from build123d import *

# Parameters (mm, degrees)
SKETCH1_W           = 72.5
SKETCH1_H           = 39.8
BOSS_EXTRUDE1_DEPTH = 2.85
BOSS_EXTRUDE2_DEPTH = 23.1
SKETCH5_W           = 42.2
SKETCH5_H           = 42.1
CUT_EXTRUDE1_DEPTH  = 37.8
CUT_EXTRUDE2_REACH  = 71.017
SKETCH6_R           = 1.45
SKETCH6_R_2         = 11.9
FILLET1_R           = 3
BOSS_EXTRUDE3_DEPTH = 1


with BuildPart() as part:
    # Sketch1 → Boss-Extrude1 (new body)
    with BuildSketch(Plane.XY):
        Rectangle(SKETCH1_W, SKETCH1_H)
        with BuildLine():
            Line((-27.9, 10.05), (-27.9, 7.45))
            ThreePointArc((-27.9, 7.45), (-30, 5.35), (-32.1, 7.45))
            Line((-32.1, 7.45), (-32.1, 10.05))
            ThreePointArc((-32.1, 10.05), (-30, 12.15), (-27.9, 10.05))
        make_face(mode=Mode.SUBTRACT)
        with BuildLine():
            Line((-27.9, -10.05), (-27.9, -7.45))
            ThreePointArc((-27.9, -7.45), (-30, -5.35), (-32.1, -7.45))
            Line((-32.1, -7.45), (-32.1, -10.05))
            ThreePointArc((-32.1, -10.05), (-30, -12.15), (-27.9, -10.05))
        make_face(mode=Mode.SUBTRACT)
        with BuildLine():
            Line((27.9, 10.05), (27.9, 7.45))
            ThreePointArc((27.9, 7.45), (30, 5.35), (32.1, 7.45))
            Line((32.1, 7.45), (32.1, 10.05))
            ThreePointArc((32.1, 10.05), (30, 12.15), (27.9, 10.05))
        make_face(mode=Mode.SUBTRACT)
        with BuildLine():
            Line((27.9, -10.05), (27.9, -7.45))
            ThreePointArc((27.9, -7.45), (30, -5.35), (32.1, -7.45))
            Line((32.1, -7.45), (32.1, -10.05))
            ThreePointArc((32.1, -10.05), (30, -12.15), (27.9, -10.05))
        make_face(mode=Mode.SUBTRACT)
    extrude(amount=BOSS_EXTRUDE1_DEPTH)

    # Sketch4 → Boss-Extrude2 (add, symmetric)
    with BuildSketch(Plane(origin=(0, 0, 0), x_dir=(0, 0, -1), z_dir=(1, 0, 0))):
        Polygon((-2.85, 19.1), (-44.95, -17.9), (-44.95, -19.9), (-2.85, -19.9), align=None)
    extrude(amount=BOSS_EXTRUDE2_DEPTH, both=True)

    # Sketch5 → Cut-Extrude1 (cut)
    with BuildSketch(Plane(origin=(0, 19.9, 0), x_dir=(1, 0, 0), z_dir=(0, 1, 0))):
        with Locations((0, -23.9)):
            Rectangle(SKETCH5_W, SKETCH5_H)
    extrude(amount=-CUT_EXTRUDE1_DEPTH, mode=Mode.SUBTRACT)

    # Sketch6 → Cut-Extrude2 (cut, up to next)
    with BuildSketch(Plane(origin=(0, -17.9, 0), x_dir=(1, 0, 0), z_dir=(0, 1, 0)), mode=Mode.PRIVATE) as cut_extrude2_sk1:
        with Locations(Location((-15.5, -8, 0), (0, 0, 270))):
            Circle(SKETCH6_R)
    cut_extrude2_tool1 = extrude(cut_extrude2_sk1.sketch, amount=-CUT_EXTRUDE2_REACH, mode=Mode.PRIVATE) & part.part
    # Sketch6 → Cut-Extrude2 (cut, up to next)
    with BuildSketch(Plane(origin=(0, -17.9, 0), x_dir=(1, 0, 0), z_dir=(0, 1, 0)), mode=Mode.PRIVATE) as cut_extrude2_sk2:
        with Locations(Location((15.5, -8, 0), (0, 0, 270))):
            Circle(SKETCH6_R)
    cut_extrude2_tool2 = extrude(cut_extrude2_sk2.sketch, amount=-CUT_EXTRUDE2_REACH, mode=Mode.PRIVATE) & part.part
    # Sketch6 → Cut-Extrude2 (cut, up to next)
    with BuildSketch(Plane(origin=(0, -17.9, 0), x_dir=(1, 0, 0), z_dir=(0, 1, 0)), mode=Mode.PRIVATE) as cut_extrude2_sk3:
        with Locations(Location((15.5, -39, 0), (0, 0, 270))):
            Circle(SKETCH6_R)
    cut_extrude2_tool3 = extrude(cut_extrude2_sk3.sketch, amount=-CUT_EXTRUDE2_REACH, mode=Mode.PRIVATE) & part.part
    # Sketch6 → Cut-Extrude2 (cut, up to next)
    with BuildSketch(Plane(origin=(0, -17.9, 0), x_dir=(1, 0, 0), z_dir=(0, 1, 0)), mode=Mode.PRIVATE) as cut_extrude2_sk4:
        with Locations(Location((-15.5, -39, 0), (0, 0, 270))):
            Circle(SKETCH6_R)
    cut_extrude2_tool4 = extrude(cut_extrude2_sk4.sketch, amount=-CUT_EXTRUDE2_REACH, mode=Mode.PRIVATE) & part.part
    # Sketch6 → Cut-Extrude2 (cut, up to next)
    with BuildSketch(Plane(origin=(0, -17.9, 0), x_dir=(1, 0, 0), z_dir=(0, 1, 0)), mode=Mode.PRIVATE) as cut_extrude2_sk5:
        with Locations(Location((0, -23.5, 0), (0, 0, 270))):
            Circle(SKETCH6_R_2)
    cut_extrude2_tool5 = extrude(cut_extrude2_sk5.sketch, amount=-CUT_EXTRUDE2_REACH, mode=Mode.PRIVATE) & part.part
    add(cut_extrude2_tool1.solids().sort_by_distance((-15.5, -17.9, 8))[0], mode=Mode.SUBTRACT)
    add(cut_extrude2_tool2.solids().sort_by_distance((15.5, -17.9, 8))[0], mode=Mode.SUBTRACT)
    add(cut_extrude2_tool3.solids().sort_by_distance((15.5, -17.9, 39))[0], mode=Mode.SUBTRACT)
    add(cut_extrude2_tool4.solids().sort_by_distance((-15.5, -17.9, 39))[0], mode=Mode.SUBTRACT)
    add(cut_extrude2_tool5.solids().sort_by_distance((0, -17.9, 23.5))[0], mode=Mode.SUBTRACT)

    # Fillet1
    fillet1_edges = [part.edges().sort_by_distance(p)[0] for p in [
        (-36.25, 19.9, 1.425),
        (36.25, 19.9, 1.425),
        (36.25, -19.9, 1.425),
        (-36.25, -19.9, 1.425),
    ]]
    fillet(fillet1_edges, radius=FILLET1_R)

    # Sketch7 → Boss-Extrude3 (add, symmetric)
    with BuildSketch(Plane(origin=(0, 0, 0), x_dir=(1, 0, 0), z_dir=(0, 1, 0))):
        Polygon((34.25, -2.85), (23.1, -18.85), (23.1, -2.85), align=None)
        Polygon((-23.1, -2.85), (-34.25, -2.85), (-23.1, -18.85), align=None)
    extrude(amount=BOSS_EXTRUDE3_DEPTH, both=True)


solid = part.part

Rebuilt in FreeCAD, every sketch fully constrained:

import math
import FreeCAD as App
import Part
import Sketcher
Q = App.Units.Quantity


def edges_at(feature, points):
    """Names of the edges that pass closest to the given points."""
    edges = feature.Shape.Edges
    near = lambda p: min(range(len(edges)), key=lambda i: edges[i].distToShape(Part.Vertex(*p))[0])
    return sorted({f"Edge{near(p) + 1}" for p in points})

doc = App.newDocument("Part")
body = doc.addObject("PartDesign::Body", "Body")

# Sketch on XY plane
sketch1 = body.newObject("Sketcher::SketchObject", "Sketch")
sketch1.AttachmentSupport = (doc.getObject("XY_Plane"), [""])
sketch1.MapMode = "FlatFace"
sketch1.addGeometry(Part.LineSegment(App.Vector(-36.2, 19.9, 0), App.Vector(-36.2, -19.9, 0)), False)
sketch1.addGeometry(Part.LineSegment(App.Vector(-36.2, -19.9, 0), App.Vector(36.2, -19.9, 0)), False)
sketch1.addGeometry(Part.LineSegment(App.Vector(36.2, -19.9, 0), App.Vector(36.2, 19.9, 0)), False)
sketch1.addGeometry(Part.LineSegment(App.Vector(36.2, 19.9, 0), App.Vector(-36.2, 19.9, 0)), False)
sketch1.addGeometry(Part.LineSegment(App.Vector(-27.9, -7.5, 0), App.Vector(-27.9, -10.1, 0)), False)
sketch1.addGeometry(Part.ArcOfCircle(Part.Circle(App.Vector(-30, -10.1, 0), App.Vector(0, 0, 1), 2.1), math.radians(180), math.radians(360)), False)
sketch1.addGeometry(Part.LineSegment(App.Vector(-32.1, -10.1, 0), App.Vector(-32.1, -7.5, 0)), False)
sketch1.addGeometry(Part.ArcOfCircle(Part.Circle(App.Vector(-30, -7.5, 0), App.Vector(0, 0, 1), 2.1), math.radians(0), math.radians(180)), False)
sketch1.addGeometry(Part.ArcOfCircle(Part.Circle(App.Vector(30, -10.1, 0), App.Vector(0, 0, 1), 2.1), math.radians(180), math.radians(360)), False)
sketch1.addGeometry(Part.LineSegment(App.Vector(27.9, -10.1, 0), App.Vector(27.9, -7.5, 0)), False)
sketch1.addGeometry(Part.ArcOfCircle(Part.Circle(App.Vector(30, -7.5, 0), App.Vector(0, 0, 1), 2.1), math.radians(0), math.radians(180)), False)
sketch1.addGeometry(Part.LineSegment(App.Vector(32.1, -7.5, 0), App.Vector(32.1, -10.1, 0)), False)
sketch1.addGeometry(Part.ArcOfCircle(Part.Circle(App.Vector(-30, 10.1, 0), App.Vector(0, 0, 1), 2.1), math.radians(0), math.radians(180)), False)
sketch1.addGeometry(Part.LineSegment(App.Vector(-27.9, 10.1, 0), App.Vector(-27.9, 7.5, 0)), False)
sketch1.addGeometry(Part.ArcOfCircle(Part.Circle(App.Vector(-30, 7.5, 0), App.Vector(0, 0, 1), 2.1), math.radians(180), math.radians(360)), False)
sketch1.addGeometry(Part.LineSegment(App.Vector(-32.1, 7.5, 0), App.Vector(-32.1, 10.1, 0)), False)
sketch1.addGeometry(Part.LineSegment(App.Vector(27.9, 7.5, 0), App.Vector(27.9, 10.1, 0)), False)
sketch1.addGeometry(Part.ArcOfCircle(Part.Circle(App.Vector(30, 10.1, 0), App.Vector(0, 0, 1), 2.1), math.radians(0), math.radians(180)), False)
sketch1.addGeometry(Part.LineSegment(App.Vector(32.1, 10.1, 0), App.Vector(32.1, 7.5, 0)), False)
sketch1.addGeometry(Part.ArcOfCircle(Part.Circle(App.Vector(30, 7.5, 0), App.Vector(0, 0, 1), 2.1), math.radians(180), math.radians(360)), False)
sketch1.addConstraint(Sketcher.Constraint("Coincident", 0, 2, 1, 1))
sketch1.addConstraint(Sketcher.Constraint("Coincident", 1, 2, 2, 1))
sketch1.addConstraint(Sketcher.Constraint("Coincident", 2, 2, 3, 1))
sketch1.addConstraint(Sketcher.Constraint("Coincident", 3, 2, 0, 1))
sketch1.addConstraint(Sketcher.Constraint("Tangent", 4, 2, 5, 2))
sketch1.addConstraint(Sketcher.Constraint("Tangent", 5, 1, 6, 1))
sketch1.addConstraint(Sketcher.Constraint("Tangent", 6, 2, 7, 2))
sketch1.addConstraint(Sketcher.Constraint("Tangent", 7, 1, 4, 1))
sketch1.addConstraint(Sketcher.Constraint("Tangent", 8, 1, 9, 1))
sketch1.addConstraint(Sketcher.Constraint("Tangent", 9, 2, 10, 2))
sketch1.addConstraint(Sketcher.Constraint("Tangent", 10, 1, 11, 1))
sketch1.addConstraint(Sketcher.Constraint("Tangent", 11, 2, 8, 2))
sketch1.addConstraint(Sketcher.Constraint("Tangent", 12, 1, 13, 1))
sketch1.addConstraint(Sketcher.Constraint("Tangent", 13, 2, 14, 2))
sketch1.addConstraint(Sketcher.Constraint("Tangent", 14, 1, 15, 1))
sketch1.addConstraint(Sketcher.Constraint("Tangent", 15, 2, 12, 2))
sketch1.addConstraint(Sketcher.Constraint("Tangent", 16, 2, 17, 2))
sketch1.addConstraint(Sketcher.Constraint("Tangent", 17, 1, 18, 1))
sketch1.addConstraint(Sketcher.Constraint("Tangent", 18, 2, 19, 2))
sketch1.addConstraint(Sketcher.Constraint("Tangent", 19, 1, 16, 1))
sketch1.addConstraint(Sketcher.Constraint("Vertical", 0))
sketch1.addConstraint(Sketcher.Constraint("Horizontal", 1))
sketch1.addConstraint(Sketcher.Constraint("Vertical", 2))
sketch1.addConstraint(Sketcher.Constraint("Horizontal", 3))
sketch1.addConstraint(Sketcher.Constraint("Vertical", 4))
sketch1.addConstraint(Sketcher.Constraint("Vertical", 6))
sketch1.addConstraint(Sketcher.Constraint("Vertical", 9))
sketch1.addConstraint(Sketcher.Constraint("Vertical", 11))
sketch1.addConstraint(Sketcher.Constraint("Vertical", 13))
sketch1.addConstraint(Sketcher.Constraint("Vertical", 15))
sketch1.addConstraint(Sketcher.Constraint("Vertical", 16))
sketch1.addConstraint(Sketcher.Constraint("Vertical", 18))
sketch1.addConstraint(Sketcher.Constraint("Equal", 7, 8))
sketch1.addConstraint(Sketcher.Constraint("Equal", 10, 12))
sketch1.addConstraint(Sketcher.Constraint("Equal", 14, 17))
sketch1.addConstraint(Sketcher.Constraint("Symmetric", 8, 3, 12, 3, -1, 1))
sketch1.addConstraint(Sketcher.Constraint("Symmetric", 5, 3, 17, 3, -1, 1))
sketch1.addConstraint(Sketcher.Constraint("Symmetric", 0, 2, 2, 2, -1, 1))
sketch1.addConstraint(Sketcher.Constraint("Symmetric", 5, 3, 8, 3, -2))
sketch1.addConstraint(Sketcher.Constraint("Horizontal", 7, 3, 10, 3))
sketch1.addConstraint(Sketcher.Constraint("Horizontal", 14, 3, 19, 3))
sketch1.addConstraint(Sketcher.Constraint("Equal", 11, 13))
sketch1.addConstraint(Sketcher.Constraint("Radius", 5, Q("2.1 mm")))
sketch1.addConstraint(Sketcher.Constraint("DistanceX", 1, 1, 1, 2, Q("72.5 mm")))
sketch1.addConstraint(Sketcher.Constraint("DistanceY", 0, 2, 0, 1, Q("39.8 mm")))
sketch1.addConstraint(Sketcher.Constraint("DistanceY", 4, 2, 4, 1, Q("2.6 mm")))
sketch1.addConstraint(Sketcher.Constraint("DistanceX", 5, 3, -1, 1, Q("30 mm")))
sketch1.addConstraint(Sketcher.Constraint("DistanceY", 7, 3, 12, 3, Q("17.5 mm")))
pad1 = body.newObject("PartDesign::Pad", "Pad")
pad1.Profile = sketch1
pad1.Length = 2.85

# Sketch on YZ plane
sketch2 = body.newObject("Sketcher::SketchObject", "Sketch001")
sketch2.AttachmentSupport = (doc.getObject("YZ_Plane"), [""])
sketch2.MapMode = "FlatFace"
sketch2.addGeometry(Part.LineSegment(App.Vector(19.1, 2.9, 0), App.Vector(-17.9, 45, 0)), False)
sketch2.addGeometry(Part.LineSegment(App.Vector(-17.9, 45, 0), App.Vector(-19.9, 45, 0)), False)
sketch2.addGeometry(Part.LineSegment(App.Vector(-19.9, 45, 0), App.Vector(-19.9, 2.9, 0)), False)
sketch2.addGeometry(Part.LineSegment(App.Vector(-19.9, 2.9, 0), App.Vector(19.1, 2.9, 0)), False)
sketch2.addConstraint(Sketcher.Constraint("Coincident", 0, 2, 1, 1))
sketch2.addConstraint(Sketcher.Constraint("Coincident", 1, 2, 2, 1))
sketch2.addConstraint(Sketcher.Constraint("Coincident", 2, 2, 3, 1))
sketch2.addConstraint(Sketcher.Constraint("Coincident", 3, 2, 0, 1))
sketch2.addConstraint(Sketcher.Constraint("Horizontal", 1))
sketch2.addConstraint(Sketcher.Constraint("Vertical", 2))
sketch2.addConstraint(Sketcher.Constraint("Horizontal", 3))
sketch2.addConstraint(Sketcher.Constraint("DistanceX", 1, 2, 1, 1, Q("2 mm")))
sketch2.addConstraint(Sketcher.Constraint("DistanceX", 3, 1, 3, 2, Q("39 mm")))
sketch2.addConstraint(Sketcher.Constraint("DistanceY", 2, 2, 2, 1, Q("42.1 mm")))
sketch2.addConstraint(Sketcher.Constraint("DistanceX", 0, 2, -1, 1, Q("17.9 mm")))
sketch2.addConstraint(Sketcher.Constraint("DistanceY", -1, 1, 0, 2, Q("44.95 mm")))
pad2 = body.newObject("PartDesign::Pad", "Pad001")
pad2.Profile = sketch2
pad2.Length = 46.2
pad2.Midplane = True

# Sketch on XZ plane
sketch3 = body.newObject("Sketcher::SketchObject", "Sketch002")
sketch3.AttachmentSupport = (doc.getObject("XZ_Plane"), [""])
sketch3.MapMode = "FlatFace"
sketch3.AttachmentOffset = App.Placement(App.Vector(0, 0, -19.9), App.Rotation())
sketch3.addGeometry(Part.LineSegment(App.Vector(-21, 3, 0), App.Vector(-21, 45, 0)), False)
sketch3.addGeometry(Part.LineSegment(App.Vector(-21, 45, 0), App.Vector(21, 45, 0)), False)
sketch3.addGeometry(Part.LineSegment(App.Vector(21, 45, 0), App.Vector(21, 3, 0)), False)
sketch3.addGeometry(Part.LineSegment(App.Vector(21, 3, 0), App.Vector(-21, 3, 0)), False)
sketch3.addConstraint(Sketcher.Constraint("Coincident", 0, 2, 1, 1))
sketch3.addConstraint(Sketcher.Constraint("Coincident", 1, 2, 2, 1))
sketch3.addConstraint(Sketcher.Constraint("Coincident", 2, 2, 3, 1))
sketch3.addConstraint(Sketcher.Constraint("Coincident", 3, 2, 0, 1))
sketch3.addConstraint(Sketcher.Constraint("Vertical", 0))
sketch3.addConstraint(Sketcher.Constraint("Horizontal", 1))
sketch3.addConstraint(Sketcher.Constraint("Vertical", 2))
sketch3.addConstraint(Sketcher.Constraint("Horizontal", 3))
sketch3.addConstraint(Sketcher.Constraint("DistanceX", 1, 1, 1, 2, Q("42.2 mm")))
sketch3.addConstraint(Sketcher.Constraint("DistanceY", 0, 1, 0, 2, Q("42.1 mm")))
sketch3.addConstraint(Sketcher.Constraint("DistanceX", 0, 2, -1, 1, Q("21.1 mm")))
sketch3.addConstraint(Sketcher.Constraint("DistanceY", -1, 1, 0, 2, Q("44.95 mm")))
pocket1 = body.newObject("PartDesign::Pocket", "Pocket")
pocket1.Profile = sketch3
pocket1.Length = 37.8
pocket1.Reversed = True

# Sketch on XZ plane
sketch4 = body.newObject("Sketcher::SketchObject", "Sketch003")
sketch4.AttachmentSupport = (doc.getObject("XZ_Plane"), [""])
sketch4.MapMode = "FlatFace"
sketch4.AttachmentOffset = App.Placement(App.Vector(0, 0, 17.9), App.Rotation())
sketch4.addGeometry(Part.Circle(App.Vector(-15.5, 8, 0), App.Vector(0, 0, 1), 1.4), False)
sketch4.addConstraint(Sketcher.Constraint("Diameter", 0, Q("2.9 mm")))
sketch4.addConstraint(Sketcher.Constraint("DistanceY", -1, 1, 0, 3, Q("8 mm")))
sketch4.addConstraint(Sketcher.Constraint("DistanceX", 0, 3, -1, 1, Q("15.5 mm")))
pocket2 = body.newObject("PartDesign::Pocket", "Pocket001")
pocket2.Profile = sketch4
pocket2.Type = "UpToFirst"
pocket2.Reversed = True

# Sketch on XZ plane
sketch5 = body.newObject("Sketcher::SketchObject", "Sketch004")
sketch5.AttachmentSupport = (doc.getObject("XZ_Plane"), [""])
sketch5.MapMode = "FlatFace"
sketch5.AttachmentOffset = App.Placement(App.Vector(0, 0, 17.9), App.Rotation())
sketch5.addGeometry(Part.Circle(App.Vector(15.5, 8, 0), App.Vector(0, 0, 1), 1.4), False)
sketch5.addConstraint(Sketcher.Constraint("Diameter", 0, Q("2.9 mm")))
sketch5.addConstraint(Sketcher.Constraint("DistanceY", -1, 1, 0, 3, Q("8 mm")))
sketch5.addConstraint(Sketcher.Constraint("DistanceX", -1, 1, 0, 3, Q("15.5 mm")))
pocket3 = body.newObject("PartDesign::Pocket", "Pocket002")
pocket3.Profile = sketch5
pocket3.Type = "UpToFirst"
pocket3.Reversed = True

# Sketch on XZ plane
sketch6 = body.newObject("Sketcher::SketchObject", "Sketch005")
sketch6.AttachmentSupport = (doc.getObject("XZ_Plane"), [""])
sketch6.MapMode = "FlatFace"
sketch6.AttachmentOffset = App.Placement(App.Vector(0, 0, 17.9), App.Rotation())
sketch6.addGeometry(Part.Circle(App.Vector(15.5, 39, 0), App.Vector(0, 0, 1), 1.4), False)
sketch6.addConstraint(Sketcher.Constraint("Diameter", 0, Q("2.9 mm")))
sketch6.addConstraint(Sketcher.Constraint("DistanceY", -1, 1, 0, 3, Q("39 mm")))
sketch6.addConstraint(Sketcher.Constraint("DistanceX", -1, 1, 0, 3, Q("15.5 mm")))
pocket4 = body.newObject("PartDesign::Pocket", "Pocket003")
pocket4.Profile = sketch6
pocket4.Type = "UpToFirst"
pocket4.Reversed = True

# Sketch on XZ plane
sketch7 = body.newObject("Sketcher::SketchObject", "Sketch006")
sketch7.AttachmentSupport = (doc.getObject("XZ_Plane"), [""])
sketch7.MapMode = "FlatFace"
sketch7.AttachmentOffset = App.Placement(App.Vector(0, 0, 17.9), App.Rotation())
sketch7.addGeometry(Part.Circle(App.Vector(-15.5, 39, 0), App.Vector(0, 0, 1), 1.4), False)
sketch7.addConstraint(Sketcher.Constraint("Diameter", 0, Q("2.9 mm")))
sketch7.addConstraint(Sketcher.Constraint("DistanceY", -1, 1, 0, 3, Q("39 mm")))
sketch7.addConstraint(Sketcher.Constraint("DistanceX", 0, 3, -1, 1, Q("15.5 mm")))
pocket5 = body.newObject("PartDesign::Pocket", "Pocket004")
pocket5.Profile = sketch7
pocket5.Type = "UpToFirst"
pocket5.Reversed = True

# Sketch on XZ plane
sketch8 = body.newObject("Sketcher::SketchObject", "Sketch007")
sketch8.AttachmentSupport = (doc.getObject("XZ_Plane"), [""])
sketch8.MapMode = "FlatFace"
sketch8.AttachmentOffset = App.Placement(App.Vector(0, 0, 17.9), App.Rotation())
sketch8.addGeometry(Part.Circle(App.Vector(0, 24, 0), App.Vector(0, 0, 1), 12), False)
sketch8.addConstraint(Sketcher.Constraint("PointOnObject", 0, 3, -2))
sketch8.addConstraint(Sketcher.Constraint("Diameter", 0, Q("23.8 mm")))
sketch8.addConstraint(Sketcher.Constraint("DistanceY", -1, 1, 0, 3, Q("23.5 mm")))
pocket6 = body.newObject("PartDesign::Pocket", "Pocket005")
pocket6.Profile = sketch8
pocket6.Type = "UpToFirst"
pocket6.Reversed = True
doc.recompute()

fillet = body.newObject("PartDesign::Fillet", "Fillet")
fillet.Base = (pocket6, edges_at(pocket6, [
    (-36.25, 19.9, 1.425),
    (36.25, 19.9, 1.425),
    (36.25, -19.9, 1.425),
    (-36.25, -19.9, 1.425),
]))
fillet.Radius = 3

# Sketch on XZ plane
sketch9 = body.newObject("Sketcher::SketchObject", "Sketch008")
sketch9.AttachmentSupport = (doc.getObject("XZ_Plane"), [""])
sketch9.MapMode = "FlatFace"
sketch9.addGeometry(Part.LineSegment(App.Vector(23, 19, 0), App.Vector(34, 3, 0)), False)
sketch9.addGeometry(Part.LineSegment(App.Vector(34, 3, 0), App.Vector(23, 3, 0)), False)
sketch9.addGeometry(Part.LineSegment(App.Vector(23, 3, 0), App.Vector(23, 19, 0)), False)
sketch9.addGeometry(Part.LineSegment(App.Vector(-23, 3, 0), App.Vector(-34, 3, 0)), False)
sketch9.addGeometry(Part.LineSegment(App.Vector(-34, 3, 0), App.Vector(-23, 19, 0)), False)
sketch9.addGeometry(Part.LineSegment(App.Vector(-23, 19, 0), App.Vector(-23, 3, 0)), False)
sketch9.addConstraint(Sketcher.Constraint("Coincident", 0, 2, 1, 1))
sketch9.addConstraint(Sketcher.Constraint("Coincident", 1, 2, 2, 1))
sketch9.addConstraint(Sketcher.Constraint("Coincident", 2, 2, 0, 1))
sketch9.addConstraint(Sketcher.Constraint("Coincident", 3, 2, 4, 1))
sketch9.addConstraint(Sketcher.Constraint("Coincident", 4, 2, 5, 1))
sketch9.addConstraint(Sketcher.Constraint("Coincident", 5, 2, 3, 1))
sketch9.addConstraint(Sketcher.Constraint("Horizontal", 1))
sketch9.addConstraint(Sketcher.Constraint("Vertical", 2))
sketch9.addConstraint(Sketcher.Constraint("Horizontal", 3))
sketch9.addConstraint(Sketcher.Constraint("Vertical", 5))
sketch9.addConstraint(Sketcher.Constraint("Symmetric", 0, 2, 3, 2, -2))
sketch9.addConstraint(Sketcher.Constraint("Symmetric", 2, 2, 4, 2, -2))
sketch9.addConstraint(Sketcher.Constraint("DistanceY", 2, 1, 2, 2, Q("16 mm")))
sketch9.addConstraint(Sketcher.Constraint("DistanceX", 1, 2, 1, 1, Q("11.15 mm")))
sketch9.addConstraint(Sketcher.Constraint("DistanceX", -1, 1, 1, 2, Q("23.1 mm")))
sketch9.addConstraint(Sketcher.Constraint("DistanceY", -1, 1, 0, 2, Q("2.85 mm")))
pad3 = body.newObject("PartDesign::Pad", "Pad002")
pad3.Profile = sketch9
pad3.Length = 2
pad3.Midplane = True

doc.recompute()
